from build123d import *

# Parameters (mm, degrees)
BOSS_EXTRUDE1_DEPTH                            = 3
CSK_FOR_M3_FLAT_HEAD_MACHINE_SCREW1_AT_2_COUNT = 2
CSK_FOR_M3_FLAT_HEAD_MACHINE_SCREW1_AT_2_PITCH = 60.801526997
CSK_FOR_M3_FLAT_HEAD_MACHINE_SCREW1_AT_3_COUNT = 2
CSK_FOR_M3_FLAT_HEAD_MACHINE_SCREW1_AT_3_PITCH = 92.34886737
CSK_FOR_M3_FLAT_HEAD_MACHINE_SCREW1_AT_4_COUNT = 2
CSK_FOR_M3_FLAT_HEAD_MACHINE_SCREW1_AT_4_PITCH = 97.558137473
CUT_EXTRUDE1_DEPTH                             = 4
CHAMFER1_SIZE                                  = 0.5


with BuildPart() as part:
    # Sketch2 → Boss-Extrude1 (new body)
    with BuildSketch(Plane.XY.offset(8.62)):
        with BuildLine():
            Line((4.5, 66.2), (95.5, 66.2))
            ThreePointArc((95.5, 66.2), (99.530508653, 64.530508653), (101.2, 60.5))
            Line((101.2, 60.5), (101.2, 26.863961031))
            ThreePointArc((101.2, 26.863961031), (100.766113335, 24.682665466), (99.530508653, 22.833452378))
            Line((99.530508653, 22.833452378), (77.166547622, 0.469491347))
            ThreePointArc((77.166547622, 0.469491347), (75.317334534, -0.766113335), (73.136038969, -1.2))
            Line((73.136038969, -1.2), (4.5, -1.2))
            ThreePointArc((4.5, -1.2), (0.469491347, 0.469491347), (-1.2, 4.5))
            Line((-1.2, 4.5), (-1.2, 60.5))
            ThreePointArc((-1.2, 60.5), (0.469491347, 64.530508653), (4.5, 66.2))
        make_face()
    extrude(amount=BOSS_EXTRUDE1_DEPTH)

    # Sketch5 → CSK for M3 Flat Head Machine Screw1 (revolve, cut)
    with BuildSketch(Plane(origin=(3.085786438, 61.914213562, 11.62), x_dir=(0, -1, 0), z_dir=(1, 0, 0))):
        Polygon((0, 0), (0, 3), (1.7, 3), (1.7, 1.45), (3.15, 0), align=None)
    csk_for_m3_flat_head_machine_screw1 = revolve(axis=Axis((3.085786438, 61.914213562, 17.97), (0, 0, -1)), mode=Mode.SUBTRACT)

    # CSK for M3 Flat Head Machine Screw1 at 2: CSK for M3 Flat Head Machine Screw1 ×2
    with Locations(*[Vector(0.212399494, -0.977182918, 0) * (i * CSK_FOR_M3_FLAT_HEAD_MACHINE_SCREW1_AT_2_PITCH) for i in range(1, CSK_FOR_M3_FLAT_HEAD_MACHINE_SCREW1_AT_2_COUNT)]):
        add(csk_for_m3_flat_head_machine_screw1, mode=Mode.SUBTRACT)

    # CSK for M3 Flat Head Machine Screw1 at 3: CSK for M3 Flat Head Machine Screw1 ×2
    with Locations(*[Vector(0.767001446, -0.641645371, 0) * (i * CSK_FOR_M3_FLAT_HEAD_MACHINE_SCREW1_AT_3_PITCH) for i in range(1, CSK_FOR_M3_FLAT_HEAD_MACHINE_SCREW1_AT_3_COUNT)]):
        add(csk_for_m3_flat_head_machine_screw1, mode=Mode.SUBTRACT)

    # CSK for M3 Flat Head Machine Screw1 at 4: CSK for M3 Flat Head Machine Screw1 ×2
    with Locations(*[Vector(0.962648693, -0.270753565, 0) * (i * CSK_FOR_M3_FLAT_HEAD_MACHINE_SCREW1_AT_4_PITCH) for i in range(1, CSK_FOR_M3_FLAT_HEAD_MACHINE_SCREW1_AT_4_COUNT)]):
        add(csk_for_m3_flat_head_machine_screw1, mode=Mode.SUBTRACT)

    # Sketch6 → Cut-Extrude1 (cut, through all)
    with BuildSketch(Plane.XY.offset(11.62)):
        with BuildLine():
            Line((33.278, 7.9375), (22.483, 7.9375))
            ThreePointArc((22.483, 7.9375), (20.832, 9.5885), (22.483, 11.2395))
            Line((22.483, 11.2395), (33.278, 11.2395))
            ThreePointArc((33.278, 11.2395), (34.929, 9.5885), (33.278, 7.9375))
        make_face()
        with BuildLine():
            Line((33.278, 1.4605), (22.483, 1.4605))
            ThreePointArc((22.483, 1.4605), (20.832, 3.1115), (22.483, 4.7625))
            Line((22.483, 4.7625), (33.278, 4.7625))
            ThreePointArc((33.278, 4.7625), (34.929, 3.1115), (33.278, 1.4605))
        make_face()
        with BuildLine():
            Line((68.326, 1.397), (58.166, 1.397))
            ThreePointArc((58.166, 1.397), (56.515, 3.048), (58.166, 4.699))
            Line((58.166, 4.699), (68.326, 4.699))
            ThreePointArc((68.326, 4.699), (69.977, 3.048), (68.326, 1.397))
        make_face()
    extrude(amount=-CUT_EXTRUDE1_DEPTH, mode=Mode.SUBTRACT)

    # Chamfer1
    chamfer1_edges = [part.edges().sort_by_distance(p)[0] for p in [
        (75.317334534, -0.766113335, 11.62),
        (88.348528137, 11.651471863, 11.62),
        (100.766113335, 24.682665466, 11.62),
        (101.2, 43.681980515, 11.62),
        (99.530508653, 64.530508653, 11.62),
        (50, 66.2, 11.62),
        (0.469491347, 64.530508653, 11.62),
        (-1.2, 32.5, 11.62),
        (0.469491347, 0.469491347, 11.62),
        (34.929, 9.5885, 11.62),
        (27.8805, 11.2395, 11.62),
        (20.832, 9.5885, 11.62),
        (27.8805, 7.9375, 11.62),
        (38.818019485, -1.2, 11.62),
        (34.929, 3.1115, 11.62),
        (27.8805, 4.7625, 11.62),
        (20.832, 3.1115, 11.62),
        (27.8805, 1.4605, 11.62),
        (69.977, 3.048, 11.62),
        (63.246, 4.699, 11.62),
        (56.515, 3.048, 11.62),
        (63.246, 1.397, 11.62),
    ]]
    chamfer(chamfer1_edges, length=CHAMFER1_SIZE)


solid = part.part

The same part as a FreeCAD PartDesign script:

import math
import FreeCAD as App
import Part
import Sketcher
from FreeCAD import Vector
Q = App.Units.Quantity


def edges_at(feature, points):
    """Names of the edges that pass closest to the given points."""
    edges = feature.Shape.Edges
    near = lambda p: min(range(len(edges)), key=lambda i: edges[i].distToShape(Part.Vertex(*p))[0])
    return sorted({f"Edge{near(p) + 1}" for p in points})

doc = App.newDocument("Part")
body = doc.addObject("PartDesign::Body", "Body")

sketch1 = body.newObject("Sketcher::SketchObject", "Sketch")
sketch1.AttachmentSupport = (doc.getObject("XY_Plane"), [""])
sketch1.MapMode = "FlatFace"
sketch1.AttachmentOffset = App.Placement(Vector(0, 0, 8.62), App.Rotation())
sketch1.addGeometry([
    Part.LineSegment(Vector(95.5, 66.2, 0), Vector(4.5, 66.2, 0)),
    Part.ArcOfCircle(Part.Circle(Vector(4.5, 60.5, 0), Vector(0, 0, 1), 5.7), math.radians(90), math.radians(180)),
    Part.LineSegment(Vector(-1.2, 60.5, 0), Vector(-1.2, 4.5, 0)),
    Part.ArcOfCircle(Part.Circle(Vector(4.5, 4.5, 0), Vector(0, 0, 1), 5.7), math.radians(180), math.radians(270)),
    Part.LineSegment(Vector(4.5, -1.2, 0), Vector(73.1, -1.2, 0)),
    Part.ArcOfCircle(Part.Circle(Vector(73.1, 4.5, 0), Vector(0, 0, 1), 5.7), math.radians(-90), math.radians(-45)),
    Part.LineSegment(Vector(77.2, 0.5, 0), Vector(99.5, 22.8, 0)),
    Part.ArcOfCircle(Part.Circle(Vector(95.5, 26.9, 0), Vector(0, 0, 1), 5.7), math.radians(-45), math.radians(0)),
    Part.LineSegment(Vector(101.2, 26.9, 0), Vector(101.2, 60.5, 0)),
    Part.ArcOfCircle(Part.Circle(Vector(95.5, 60.5, 0), Vector(0, 0, 1), 5.7), math.radians(0), math.radians(90)),
], False)
sketch1.addConstraint([
    Sketcher.Constraint("Tangent", 0, 2, 1, 1),
    Sketcher.Constraint("Tangent", 1, 2, 2, 1),
    Sketcher.Constraint("Tangent", 2, 2, 3, 1),
    Sketcher.Constraint("Tangent", 3, 2, 4, 1),
    Sketcher.Constraint("Tangent", 4, 2, 5, 1),
    Sketcher.Constraint("Tangent", 5, 2, 6, 1),
    Sketcher.Constraint("Tangent", 6, 2, 7, 1),
    Sketcher.Constraint("Tangent", 7, 2, 8, 1),
    Sketcher.Constraint("Tangent", 8, 2, 9, 1),
    Sketcher.Constraint("Tangent", 9, 2, 0, 1),
    Sketcher.Constraint("Horizontal", 0),
    Sketcher.Constraint("Vertical", 2),
    Sketcher.Constraint("Horizontal", 4),
    Sketcher.Constraint("Vertical", 8),
    Sketcher.Constraint("Equal", 1, 3),
    Sketcher.Constraint("Equal", 3, 5),
    Sketcher.Constraint("Equal", 5, 7),
    Sketcher.Constraint("Equal", 7, 9),
    Sketcher.Constraint("Radius", 1, 5.7),
    Sketcher.Constraint("DistanceX", 0, 2, 0, 1, 91.0),
    Sketcher.Constraint("DistanceY", 2, 2, 2, 1, 56.0),
    Sketcher.Constraint("Angle", 6, Q("45 deg")),
    Sketcher.Constraint("DistanceX", -1, 1, 1, 3, 4.5),
    Sketcher.Constraint("DistanceY", -1, 1, 1, 3, 60.5),
    Sketcher.Constraint("DistanceX", 4, 1, 4, 2, 68.636039),
])
pad1 = body.newObject("PartDesign::Pad", "Pad")
pad1.Profile = sketch1
pad1.Length = 3

sketch2 = body.newObject("Sketcher::SketchObject", "Sketch001")
sketch2.AttachmentSupport = (doc.getObject("YZ_Plane"), [""])
sketch2.MapMode = "FlatFace"
sketch2.AttachmentOffset = App.Placement(Vector(0, 0, 3.085786), App.Rotation())
sketch2.addGeometry([
    Part.LineSegment(Vector(61.9, 8.6, 0), Vector(61.9, 11.6, 0)),
    Part.LineSegment(Vector(61.9, 11.6, 0), Vector(58.8, 11.6, 0)),
    Part.LineSegment(Vector(58.8, 11.6, 0), Vector(60.2, 10.2, 0)),
    Part.LineSegment(Vector(60.2, 10.2, 0), Vector(60.2, 8.6, 0)),
    Part.LineSegment(Vector(60.2, 8.6, 0), Vector(61.9, 8.6, 0)),
], False)
sketch2.addGeometry(Part.LineSegment(Vector(61.9, 11.6, 0), Vector(61.9, 8.6, 0)), True)
sketch2.addConstraint([
    Sketcher.Constraint("Coincident", 0, 2, 1, 1),
    Sketcher.Constraint("Coincident", 1, 2, 2, 1),
    Sketcher.Constraint("Coincident", 2, 2, 3, 1),
    Sketcher.Constraint("Coincident", 3, 2, 4, 1),
    Sketcher.Constraint("Coincident", 4, 2, 0, 1),
    Sketcher.Constraint("Vertical", 0),
    Sketcher.Constraint("Horizontal", 1),
    Sketcher.Constraint("Vertical", 3),
    Sketcher.Constraint("Horizontal", 4),
    Sketcher.Constraint("Vertical", 5),
    Sketcher.Constraint("Coincident", 5, 1, 0, 2),
    Sketcher.Constraint("Horizontal", 3, 2, 5, 2),
    Sketcher.Constraint("DistanceY", 0, 1, 0, 2, 3.0),
    Sketcher.Constraint("Angle", 2, Q("-45 deg")),
    Sketcher.Constraint("DistanceX", 4, 1, 4, 2, 1.7),
    Sketcher.Constraint("DistanceX", 1, 2, 1, 1, 3.15),
    Sketcher.Constraint("DistanceY", -1, 1, 0, 2, 11.62),
    Sketcher.Constraint("DistanceX", -1, 1, 0, 2, 61.914214),
])
groove = body.newObject("PartDesign::Groove", "Groove")
groove.Profile = sketch2
groove.ReferenceAxis = (sketch2, ["Axis0"])
groove.Angle = 360
doc.recompute()

datumline = body.newObject("PartDesign::Line", "DatumLine")
datumline.Placement = App.Placement(Vector(0, 0, 0), App.Rotation(Vector(0, 0, 1), Vector(0.212399494, -0.977182918, 0)))
linearpattern = body.newObject("PartDesign::LinearPattern", "LinearPattern")
linearpattern.Originals = [groove]
linearpattern.Direction = (datumline, [""])
linearpattern.Mode = "offset"
linearpattern.Offset = 60.801527
linearpattern.Occurrences = 2
body.Tip = linearpattern
doc.recompute()

datumline2 = body.newObject("PartDesign::Line", "DatumLine001")
datumline2.Placement = App.Placement(Vector(0, 0, 0), App.Rotation(Vector(0, 0, 1), Vector(0.767001446, -0.641645371, 0)))
linearpattern2 = body.newObject("PartDesign::LinearPattern", "LinearPattern001")
linearpattern2.Originals = [groove]
linearpattern2.Direction = (datumline2, [""])
linearpattern2.Mode = "offset"
linearpattern2.Offset = 92.348867
linearpattern2.Occurrences = 2
body.Tip = linearpattern2
doc.recompute()

datumline3 = body.newObject("PartDesign::Line", "DatumLine002")
datumline3.Placement = App.Placement(Vector(0, 0, 0), App.Rotation(Vector(0, 0, 1), Vector(0.962648693, -0.270753565, 0)))
linearpattern3 = body.newObject("PartDesign::LinearPattern", "LinearPattern002")
linearpattern3.Originals = [groove]
linearpattern3.Direction = (datumline3, [""])
linearpattern3.Mode = "offset"
linearpattern3.Offset = 97.558137
linearpattern3.Occurrences = 2
body.Tip = linearpattern3

sketch3 = body.newObject("Sketcher::SketchObject", "Sketch002")
sketch3.AttachmentSupport = (doc.getObject("XY_Plane"), [""])
sketch3.MapMode = "FlatFace"
sketch3.AttachmentOffset = App.Placement(Vector(0, 0, 11.62), App.Rotation())
sketch3.addGeometry([
    Part.LineSegment(Vector(22.5, 7.9, 0), Vector(33.3, 7.9, 0)),
    Part.ArcOfCircle(Part.Circle(Vector(33.3, 9.6, 0), Vector(0, 0, 1), 1.7), math.radians(-90), math.radians(90)),
    Part.LineSegment(Vector(33.3, 11.2, 0), Vector(22.5, 11.2, 0)),
    Part.ArcOfCircle(Part.Circle(Vector(22.5, 9.6, 0), Vector(0, 0, 1), 1.7), math.radians(90), math.radians(270)),
    Part.LineSegment(Vector(22.5, 1.5, 0), Vector(33.3, 1.5, 0)),
    Part.ArcOfCircle(Part.Circle(Vector(33.3, 3.1, 0), Vector(0, 0, 1), 1.7), math.radians(-90), math.radians(90)),
    Part.LineSegment(Vector(33.3, 4.8, 0), Vector(22.5, 4.8, 0)),
    Part.ArcOfCircle(Part.Circle(Vector(22.5, 3.1, 0), Vector(0, 0, 1), 1.7), math.radians(90), math.radians(270)),
    Part.LineSegment(Vector(58.2, 1.4, 0), Vector(68.3, 1.4, 0)),
    Part.ArcOfCircle(Part.Circle(Vector(68.3, 3, 0), Vector(0, 0, 1), 1.7), math.radians(-90), math.radians(90)),
    Part.LineSegment(Vector(68.3, 4.7, 0), Vector(58.2, 4.7, 0)),
    Part.ArcOfCircle(Part.Circle(Vector(58.2, 3, 0), Vector(0, 0, 1), 1.7), math.radians(90), math.radians(270)),
], False)
sketch3.addConstraint([
    Sketcher.Constraint("Tangent", 0, 2, 1, 1),
    Sketcher.Constraint("Tangent", 1, 2, 2, 1),
    Sketcher.Constraint("Tangent", 2, 2, 3, 1),
    Sketcher.Constraint("Tangent", 3, 2, 0, 1),
    Sketcher.Constraint("Tangent", 4, 2, 5, 1),
    Sketcher.Constraint("Tangent", 5, 2, 6, 1),
    Sketcher.Constraint("Tangent", 6, 2, 7, 1),
    Sketcher.Constraint("Tangent", 7, 2, 4, 1),
    Sketcher.Constraint("Tangent", 8, 2, 9, 1),
    Sketcher.Constraint("Tangent", 9, 2, 10, 1),
    Sketcher.Constraint("Tangent", 10, 2, 11, 1),
    Sketcher.Constraint("Tangent", 11, 2, 8, 1),
    Sketcher.Constraint("Horizontal", 0),
    Sketcher.Constraint("Horizontal", 2),
    Sketcher.Constraint("Horizontal", 4),
    Sketcher.Constraint("Horizontal", 6),
    Sketcher.Constraint("Horizontal", 8),
    Sketcher.Constraint("Horizontal", 10),
    Sketcher.Constraint("Equal", 3, 5),
    Sketcher.Constraint("Equal", 7, 9),
    Sketcher.Constraint("Vertical", 1, 3, 5, 3),
    Sketcher.Constraint("Vertical", 3, 3, 7, 3),
    Sketcher.Constraint("Radius", 1, 1.651),
    Sketcher.Constraint("DistanceX", 8, 1, 8, 2, 10.16),
    Sketcher.Constraint("DistanceX", 0, 1, 0, 2, 10.795),
    Sketcher.Constraint("DistanceX", -1, 1, 1, 3, 33.278),
    Sketcher.Constraint("DistanceX", -1, 1, 9, 3, 68.326),
    Sketcher.Constraint("DistanceY", -1, 1, 9, 3, 3.048),
    Sketcher.Constraint("DistanceY", 5, 3, 1, 3, 6.477),
    Sketcher.Constraint("DistanceY", -1, 1, 1, 3, 9.5885),
])
pocket1 = body.newObject("PartDesign::Pocket", "Pocket")
pocket1.Profile = sketch3
pocket1.Type = "ThroughAll"
doc.recompute()

chamfer = body.newObject("PartDesign::Chamfer", "Chamfer")
chamfer.Base = (pocket1, edges_at(pocket1, [
    (75.317, -0.766, 11.62),
    (88.349, 11.651, 11.62),
    (100.766, 24.683, 11.62),
    (101.2, 43.682, 11.62),
    (99.531, 64.531, 11.62),
    (50, 66.2, 11.62),
    (0.469, 64.531, 11.62),
    (-1.2, 32.5, 11.62),
    (0.469, 0.469, 11.62),
    (34.929, 9.588, 11.62),
    (27.881, 11.239, 11.62),
    (20.832, 9.588, 11.62),
    (27.881, 7.938, 11.62),
    (38.818, -1.2, 11.62),
    (34.929, 3.111, 11.62),
    (27.881, 4.763, 11.62),
    (20.832, 3.111, 11.62),
    (27.881, 1.46, 11.62),
    (69.977, 3.048, 11.62),
    (63.246, 4.699, 11.62),
    (56.515, 3.048, 11.62),
    (63.246, 1.397, 11.62),
]))
chamfer.Size = 0.5

doc.recompute()
